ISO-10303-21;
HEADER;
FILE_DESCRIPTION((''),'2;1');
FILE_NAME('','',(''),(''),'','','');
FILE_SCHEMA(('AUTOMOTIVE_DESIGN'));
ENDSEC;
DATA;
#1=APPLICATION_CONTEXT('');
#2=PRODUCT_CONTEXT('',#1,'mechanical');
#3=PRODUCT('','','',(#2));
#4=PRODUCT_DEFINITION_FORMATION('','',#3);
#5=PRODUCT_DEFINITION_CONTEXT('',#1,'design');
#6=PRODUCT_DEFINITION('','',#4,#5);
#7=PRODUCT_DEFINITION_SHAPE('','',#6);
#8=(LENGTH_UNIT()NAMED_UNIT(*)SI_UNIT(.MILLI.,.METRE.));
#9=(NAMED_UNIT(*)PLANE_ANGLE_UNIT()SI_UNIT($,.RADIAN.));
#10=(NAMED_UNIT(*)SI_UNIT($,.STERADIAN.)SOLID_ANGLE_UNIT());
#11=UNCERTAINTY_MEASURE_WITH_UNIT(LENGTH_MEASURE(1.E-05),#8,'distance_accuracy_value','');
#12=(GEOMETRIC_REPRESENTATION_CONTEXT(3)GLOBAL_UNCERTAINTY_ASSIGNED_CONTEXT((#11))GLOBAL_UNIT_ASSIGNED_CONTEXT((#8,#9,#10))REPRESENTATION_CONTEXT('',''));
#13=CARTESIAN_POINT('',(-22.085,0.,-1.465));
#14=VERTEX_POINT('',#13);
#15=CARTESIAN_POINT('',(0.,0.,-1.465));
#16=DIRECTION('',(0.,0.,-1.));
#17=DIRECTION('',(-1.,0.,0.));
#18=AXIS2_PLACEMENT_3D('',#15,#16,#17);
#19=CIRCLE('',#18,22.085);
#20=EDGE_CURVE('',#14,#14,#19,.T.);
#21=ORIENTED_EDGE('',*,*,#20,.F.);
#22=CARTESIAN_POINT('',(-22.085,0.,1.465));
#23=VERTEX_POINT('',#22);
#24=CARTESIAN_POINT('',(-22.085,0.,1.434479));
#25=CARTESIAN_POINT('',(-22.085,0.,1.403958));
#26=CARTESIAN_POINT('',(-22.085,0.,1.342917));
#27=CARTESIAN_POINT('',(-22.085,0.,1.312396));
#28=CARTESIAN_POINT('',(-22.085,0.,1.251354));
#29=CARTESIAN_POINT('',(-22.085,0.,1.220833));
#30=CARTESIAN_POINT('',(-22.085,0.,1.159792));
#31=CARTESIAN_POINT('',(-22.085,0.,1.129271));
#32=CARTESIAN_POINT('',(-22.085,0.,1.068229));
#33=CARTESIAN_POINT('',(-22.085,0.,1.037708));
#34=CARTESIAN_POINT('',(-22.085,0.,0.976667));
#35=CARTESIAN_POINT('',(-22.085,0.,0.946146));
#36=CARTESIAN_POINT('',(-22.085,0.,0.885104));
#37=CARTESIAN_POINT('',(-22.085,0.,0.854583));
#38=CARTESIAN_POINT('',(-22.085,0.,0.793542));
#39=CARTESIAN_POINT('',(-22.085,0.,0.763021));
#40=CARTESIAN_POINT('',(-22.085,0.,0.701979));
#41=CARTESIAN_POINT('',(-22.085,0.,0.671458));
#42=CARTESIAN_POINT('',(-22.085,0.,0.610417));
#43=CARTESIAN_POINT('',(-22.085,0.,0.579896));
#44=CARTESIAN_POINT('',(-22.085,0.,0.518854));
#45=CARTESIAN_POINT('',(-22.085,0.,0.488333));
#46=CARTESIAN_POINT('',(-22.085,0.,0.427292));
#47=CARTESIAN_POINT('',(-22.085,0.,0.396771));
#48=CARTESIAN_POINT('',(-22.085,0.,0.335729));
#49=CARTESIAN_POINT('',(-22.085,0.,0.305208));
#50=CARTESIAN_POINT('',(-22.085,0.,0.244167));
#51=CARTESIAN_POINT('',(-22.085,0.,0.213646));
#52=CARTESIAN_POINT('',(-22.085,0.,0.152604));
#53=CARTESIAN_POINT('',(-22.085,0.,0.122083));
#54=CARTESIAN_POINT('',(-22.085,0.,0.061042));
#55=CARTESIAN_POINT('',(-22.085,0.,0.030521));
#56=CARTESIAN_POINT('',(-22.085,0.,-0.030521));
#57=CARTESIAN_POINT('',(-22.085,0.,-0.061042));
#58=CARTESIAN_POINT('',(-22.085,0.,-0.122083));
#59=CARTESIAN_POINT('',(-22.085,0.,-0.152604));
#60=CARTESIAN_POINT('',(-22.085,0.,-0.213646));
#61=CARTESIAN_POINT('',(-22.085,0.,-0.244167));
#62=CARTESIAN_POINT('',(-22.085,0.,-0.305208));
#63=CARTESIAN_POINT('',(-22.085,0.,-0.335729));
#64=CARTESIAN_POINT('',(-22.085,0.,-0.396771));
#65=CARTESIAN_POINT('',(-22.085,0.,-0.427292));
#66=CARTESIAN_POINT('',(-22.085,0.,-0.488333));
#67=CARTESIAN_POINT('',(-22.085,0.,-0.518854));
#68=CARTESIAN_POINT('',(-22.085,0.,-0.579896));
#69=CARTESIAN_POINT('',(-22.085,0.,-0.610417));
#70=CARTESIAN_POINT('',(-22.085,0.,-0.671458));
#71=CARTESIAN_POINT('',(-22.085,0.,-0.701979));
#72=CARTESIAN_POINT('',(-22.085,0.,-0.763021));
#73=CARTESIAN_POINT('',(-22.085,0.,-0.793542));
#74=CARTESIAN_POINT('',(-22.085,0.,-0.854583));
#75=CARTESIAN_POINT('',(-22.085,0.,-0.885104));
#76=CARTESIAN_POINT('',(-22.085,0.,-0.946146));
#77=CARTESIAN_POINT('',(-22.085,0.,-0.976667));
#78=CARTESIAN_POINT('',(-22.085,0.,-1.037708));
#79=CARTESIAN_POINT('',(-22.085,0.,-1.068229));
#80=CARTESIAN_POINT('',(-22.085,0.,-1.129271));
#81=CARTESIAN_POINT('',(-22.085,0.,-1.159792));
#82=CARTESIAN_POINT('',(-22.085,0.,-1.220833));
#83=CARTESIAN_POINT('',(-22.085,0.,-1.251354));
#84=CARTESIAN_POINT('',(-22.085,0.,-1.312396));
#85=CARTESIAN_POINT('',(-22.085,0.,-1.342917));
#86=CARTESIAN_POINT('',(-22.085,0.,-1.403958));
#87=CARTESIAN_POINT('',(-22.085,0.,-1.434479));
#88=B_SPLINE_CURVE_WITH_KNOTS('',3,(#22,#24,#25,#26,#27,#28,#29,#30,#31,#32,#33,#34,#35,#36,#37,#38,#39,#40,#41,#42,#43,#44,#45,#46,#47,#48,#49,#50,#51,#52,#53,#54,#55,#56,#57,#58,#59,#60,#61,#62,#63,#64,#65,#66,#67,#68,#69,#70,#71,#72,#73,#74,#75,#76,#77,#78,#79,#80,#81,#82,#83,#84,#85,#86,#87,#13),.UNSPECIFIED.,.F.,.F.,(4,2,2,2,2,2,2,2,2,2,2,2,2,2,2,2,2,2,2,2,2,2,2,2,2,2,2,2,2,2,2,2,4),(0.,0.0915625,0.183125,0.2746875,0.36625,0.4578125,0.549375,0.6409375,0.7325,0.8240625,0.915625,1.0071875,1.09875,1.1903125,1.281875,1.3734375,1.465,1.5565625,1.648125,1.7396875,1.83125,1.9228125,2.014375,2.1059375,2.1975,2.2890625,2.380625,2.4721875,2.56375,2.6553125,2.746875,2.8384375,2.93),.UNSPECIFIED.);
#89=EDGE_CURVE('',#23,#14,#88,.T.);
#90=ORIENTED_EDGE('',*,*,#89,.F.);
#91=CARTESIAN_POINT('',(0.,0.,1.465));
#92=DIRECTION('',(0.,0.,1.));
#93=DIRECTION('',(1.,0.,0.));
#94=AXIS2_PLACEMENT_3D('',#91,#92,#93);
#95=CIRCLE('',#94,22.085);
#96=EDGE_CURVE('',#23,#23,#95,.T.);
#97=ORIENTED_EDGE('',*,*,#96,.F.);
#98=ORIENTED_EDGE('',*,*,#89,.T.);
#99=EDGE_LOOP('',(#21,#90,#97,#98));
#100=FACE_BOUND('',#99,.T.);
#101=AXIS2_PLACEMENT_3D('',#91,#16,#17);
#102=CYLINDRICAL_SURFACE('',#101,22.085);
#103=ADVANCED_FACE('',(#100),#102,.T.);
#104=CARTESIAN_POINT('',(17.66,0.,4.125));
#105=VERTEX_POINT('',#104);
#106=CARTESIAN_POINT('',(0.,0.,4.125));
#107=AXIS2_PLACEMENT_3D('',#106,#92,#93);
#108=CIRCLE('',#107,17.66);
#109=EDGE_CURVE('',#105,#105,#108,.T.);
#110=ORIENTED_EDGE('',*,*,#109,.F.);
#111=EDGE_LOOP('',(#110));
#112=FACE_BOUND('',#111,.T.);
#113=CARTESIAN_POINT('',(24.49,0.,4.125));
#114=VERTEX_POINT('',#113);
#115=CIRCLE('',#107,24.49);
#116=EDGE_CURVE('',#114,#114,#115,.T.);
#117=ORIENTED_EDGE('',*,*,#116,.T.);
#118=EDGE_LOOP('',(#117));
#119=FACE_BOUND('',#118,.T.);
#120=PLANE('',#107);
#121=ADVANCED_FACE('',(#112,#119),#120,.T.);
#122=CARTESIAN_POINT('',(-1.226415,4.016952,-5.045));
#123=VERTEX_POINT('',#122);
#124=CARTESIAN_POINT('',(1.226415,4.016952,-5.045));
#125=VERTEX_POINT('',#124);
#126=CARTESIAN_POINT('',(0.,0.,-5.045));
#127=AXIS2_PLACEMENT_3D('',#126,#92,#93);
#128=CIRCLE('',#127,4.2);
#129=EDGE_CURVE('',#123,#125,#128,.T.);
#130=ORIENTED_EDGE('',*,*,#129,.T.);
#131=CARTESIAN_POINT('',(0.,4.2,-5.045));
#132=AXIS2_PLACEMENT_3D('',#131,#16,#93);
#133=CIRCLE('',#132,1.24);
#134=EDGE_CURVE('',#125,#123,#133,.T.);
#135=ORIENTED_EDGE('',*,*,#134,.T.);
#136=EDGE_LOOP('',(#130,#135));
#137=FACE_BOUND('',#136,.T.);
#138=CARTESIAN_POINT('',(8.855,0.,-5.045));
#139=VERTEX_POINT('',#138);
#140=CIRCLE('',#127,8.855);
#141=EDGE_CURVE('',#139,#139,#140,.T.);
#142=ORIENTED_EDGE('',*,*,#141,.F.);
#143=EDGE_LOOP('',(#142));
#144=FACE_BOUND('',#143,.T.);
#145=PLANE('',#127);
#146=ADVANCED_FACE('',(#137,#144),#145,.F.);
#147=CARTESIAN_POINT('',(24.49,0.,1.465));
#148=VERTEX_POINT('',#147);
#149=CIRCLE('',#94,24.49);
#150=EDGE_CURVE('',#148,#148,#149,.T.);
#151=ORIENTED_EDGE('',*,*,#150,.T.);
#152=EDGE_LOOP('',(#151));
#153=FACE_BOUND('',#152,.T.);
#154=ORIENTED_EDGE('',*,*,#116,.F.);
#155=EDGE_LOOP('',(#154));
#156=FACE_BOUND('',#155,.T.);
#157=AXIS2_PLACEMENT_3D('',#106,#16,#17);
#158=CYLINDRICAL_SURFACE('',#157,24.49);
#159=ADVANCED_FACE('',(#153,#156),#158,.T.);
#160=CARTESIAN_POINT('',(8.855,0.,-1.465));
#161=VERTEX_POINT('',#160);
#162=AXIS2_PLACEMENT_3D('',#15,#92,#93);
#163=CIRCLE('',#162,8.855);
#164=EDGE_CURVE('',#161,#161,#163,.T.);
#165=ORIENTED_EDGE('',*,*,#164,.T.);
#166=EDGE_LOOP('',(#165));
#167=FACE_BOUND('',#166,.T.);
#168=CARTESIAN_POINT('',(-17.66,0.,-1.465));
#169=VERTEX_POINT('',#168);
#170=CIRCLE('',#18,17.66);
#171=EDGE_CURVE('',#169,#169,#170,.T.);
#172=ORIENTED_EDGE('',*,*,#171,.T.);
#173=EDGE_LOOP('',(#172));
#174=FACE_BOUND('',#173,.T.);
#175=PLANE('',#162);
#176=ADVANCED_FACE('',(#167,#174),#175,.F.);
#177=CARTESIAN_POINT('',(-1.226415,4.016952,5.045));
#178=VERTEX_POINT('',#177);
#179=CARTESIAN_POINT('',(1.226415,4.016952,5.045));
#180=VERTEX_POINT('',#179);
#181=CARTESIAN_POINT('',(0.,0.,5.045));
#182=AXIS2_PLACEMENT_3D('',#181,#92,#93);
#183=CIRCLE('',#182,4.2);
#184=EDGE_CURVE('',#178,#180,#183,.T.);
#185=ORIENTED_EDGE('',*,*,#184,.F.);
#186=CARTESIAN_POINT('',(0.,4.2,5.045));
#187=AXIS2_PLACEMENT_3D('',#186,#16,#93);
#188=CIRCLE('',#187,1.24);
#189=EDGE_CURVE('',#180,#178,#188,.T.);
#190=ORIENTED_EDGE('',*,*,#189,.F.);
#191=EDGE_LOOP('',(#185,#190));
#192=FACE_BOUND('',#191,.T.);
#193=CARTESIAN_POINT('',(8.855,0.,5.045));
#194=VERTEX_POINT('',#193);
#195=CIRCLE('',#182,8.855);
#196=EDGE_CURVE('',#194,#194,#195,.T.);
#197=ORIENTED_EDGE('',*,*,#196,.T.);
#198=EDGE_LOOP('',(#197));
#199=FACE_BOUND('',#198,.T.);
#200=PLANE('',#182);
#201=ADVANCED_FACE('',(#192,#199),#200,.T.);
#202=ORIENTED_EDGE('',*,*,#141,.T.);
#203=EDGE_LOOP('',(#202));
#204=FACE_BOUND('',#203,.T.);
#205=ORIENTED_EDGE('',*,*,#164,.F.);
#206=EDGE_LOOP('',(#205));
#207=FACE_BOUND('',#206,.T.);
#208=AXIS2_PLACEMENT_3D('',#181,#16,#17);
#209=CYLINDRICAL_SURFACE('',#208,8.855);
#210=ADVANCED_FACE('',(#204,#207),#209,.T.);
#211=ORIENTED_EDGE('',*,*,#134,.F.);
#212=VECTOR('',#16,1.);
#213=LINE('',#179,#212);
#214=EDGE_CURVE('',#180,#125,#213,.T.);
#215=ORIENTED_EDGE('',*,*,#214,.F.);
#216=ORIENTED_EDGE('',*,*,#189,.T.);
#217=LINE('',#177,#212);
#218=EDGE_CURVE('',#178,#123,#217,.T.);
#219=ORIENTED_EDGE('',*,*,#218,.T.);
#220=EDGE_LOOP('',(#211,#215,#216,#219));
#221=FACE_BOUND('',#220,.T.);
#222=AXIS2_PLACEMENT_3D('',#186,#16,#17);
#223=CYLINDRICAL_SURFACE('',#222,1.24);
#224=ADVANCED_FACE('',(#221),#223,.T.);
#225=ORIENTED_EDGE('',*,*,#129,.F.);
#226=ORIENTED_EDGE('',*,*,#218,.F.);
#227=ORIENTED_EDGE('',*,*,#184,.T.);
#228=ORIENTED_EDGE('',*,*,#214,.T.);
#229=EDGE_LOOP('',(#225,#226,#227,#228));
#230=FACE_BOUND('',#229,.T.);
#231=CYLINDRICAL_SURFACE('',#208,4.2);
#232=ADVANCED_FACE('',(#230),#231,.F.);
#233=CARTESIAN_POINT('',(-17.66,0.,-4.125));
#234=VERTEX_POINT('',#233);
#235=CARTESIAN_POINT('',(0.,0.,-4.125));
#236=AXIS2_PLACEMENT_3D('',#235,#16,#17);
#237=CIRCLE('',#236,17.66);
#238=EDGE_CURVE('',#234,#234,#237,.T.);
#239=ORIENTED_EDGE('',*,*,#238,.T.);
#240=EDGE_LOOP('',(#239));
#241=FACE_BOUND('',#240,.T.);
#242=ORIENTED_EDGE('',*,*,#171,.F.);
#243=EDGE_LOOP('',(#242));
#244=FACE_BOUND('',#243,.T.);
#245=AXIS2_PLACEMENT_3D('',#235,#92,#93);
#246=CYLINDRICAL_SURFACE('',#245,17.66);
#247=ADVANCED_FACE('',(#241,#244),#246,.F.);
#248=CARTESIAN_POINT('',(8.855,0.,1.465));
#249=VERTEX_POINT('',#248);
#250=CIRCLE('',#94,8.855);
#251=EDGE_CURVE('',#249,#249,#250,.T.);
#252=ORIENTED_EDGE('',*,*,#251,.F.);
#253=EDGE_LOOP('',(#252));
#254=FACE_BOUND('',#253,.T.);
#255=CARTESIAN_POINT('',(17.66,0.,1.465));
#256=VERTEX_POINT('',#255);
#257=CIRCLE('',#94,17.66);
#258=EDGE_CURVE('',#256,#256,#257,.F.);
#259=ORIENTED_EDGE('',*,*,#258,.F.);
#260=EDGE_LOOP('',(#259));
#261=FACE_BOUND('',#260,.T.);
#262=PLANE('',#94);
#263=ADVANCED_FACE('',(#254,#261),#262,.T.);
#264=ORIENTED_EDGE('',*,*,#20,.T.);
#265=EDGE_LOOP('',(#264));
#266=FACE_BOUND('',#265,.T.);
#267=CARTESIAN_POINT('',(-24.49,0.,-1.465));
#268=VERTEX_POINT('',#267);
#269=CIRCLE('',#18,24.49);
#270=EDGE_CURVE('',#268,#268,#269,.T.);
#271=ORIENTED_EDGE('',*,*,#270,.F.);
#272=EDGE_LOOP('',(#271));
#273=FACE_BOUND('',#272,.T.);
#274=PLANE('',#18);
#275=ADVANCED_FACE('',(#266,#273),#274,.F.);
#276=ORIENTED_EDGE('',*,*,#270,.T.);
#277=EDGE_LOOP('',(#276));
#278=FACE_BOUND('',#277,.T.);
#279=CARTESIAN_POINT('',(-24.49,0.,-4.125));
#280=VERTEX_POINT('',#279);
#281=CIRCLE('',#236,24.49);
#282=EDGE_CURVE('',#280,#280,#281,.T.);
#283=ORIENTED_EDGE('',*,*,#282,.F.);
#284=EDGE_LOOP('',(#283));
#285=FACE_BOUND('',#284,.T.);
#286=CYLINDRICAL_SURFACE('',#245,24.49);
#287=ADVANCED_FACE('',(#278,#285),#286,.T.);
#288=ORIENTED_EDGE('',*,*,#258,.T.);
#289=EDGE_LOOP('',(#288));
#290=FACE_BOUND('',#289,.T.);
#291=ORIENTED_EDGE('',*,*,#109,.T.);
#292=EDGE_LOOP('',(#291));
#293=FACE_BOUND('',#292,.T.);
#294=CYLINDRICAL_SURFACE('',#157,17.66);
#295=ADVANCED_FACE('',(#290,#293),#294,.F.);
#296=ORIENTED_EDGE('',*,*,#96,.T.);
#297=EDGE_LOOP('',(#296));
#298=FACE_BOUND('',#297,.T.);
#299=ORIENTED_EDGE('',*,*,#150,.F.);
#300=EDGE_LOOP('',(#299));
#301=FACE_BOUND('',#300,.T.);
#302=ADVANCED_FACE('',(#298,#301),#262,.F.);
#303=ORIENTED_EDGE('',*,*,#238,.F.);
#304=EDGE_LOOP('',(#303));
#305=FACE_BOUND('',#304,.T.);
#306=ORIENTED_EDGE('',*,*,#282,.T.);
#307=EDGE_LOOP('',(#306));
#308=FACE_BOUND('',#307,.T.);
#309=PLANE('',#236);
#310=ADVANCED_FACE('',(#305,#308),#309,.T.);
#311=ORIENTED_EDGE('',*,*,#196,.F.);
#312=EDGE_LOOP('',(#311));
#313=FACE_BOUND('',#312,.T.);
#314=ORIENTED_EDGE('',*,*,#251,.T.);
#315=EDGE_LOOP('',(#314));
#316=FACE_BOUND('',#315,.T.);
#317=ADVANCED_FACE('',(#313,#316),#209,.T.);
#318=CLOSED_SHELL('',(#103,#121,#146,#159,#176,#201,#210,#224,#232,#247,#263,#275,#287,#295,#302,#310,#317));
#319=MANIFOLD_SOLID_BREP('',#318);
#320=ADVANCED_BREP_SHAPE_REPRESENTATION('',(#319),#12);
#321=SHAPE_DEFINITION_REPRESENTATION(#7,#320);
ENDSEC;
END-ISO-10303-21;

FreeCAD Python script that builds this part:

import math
import FreeCAD as App
import Part
import Sketcher

V = App.Vector
Q = App.Units.Quantity

doc = App.newDocument("Part")
body = doc.addObject("PartDesign::Body", "Body")

# Sketch on XY plane
sketch1 = body.newObject("Sketcher::SketchObject", "Sketch")
sketch1.AttachmentSupport = (doc.getObject("XY_Plane"), [""])
sketch1.MapMode = "FlatFace"
sketch1.addGeometry(Part.Circle(V(0, 0, 0), V(0, 0, 1), 8.9), False)
sketch1.addGeometry(Part.ArcOfCircle(Part.Circle(V(0, 0, 0), V(0, 0, 1), 4.2), math.radians(107), math.radians(433)), False)
sketch1.addGeometry(Part.ArcOfCircle(Part.Circle(V(0, 4.2, 0), V(0, 0, 1), 1.2), math.radians(-172), math.radians(-8)), False)
sketch1.addConstraint(Sketcher.Constraint("Coincident", 1, 1, 2, 1))
sketch1.addConstraint(Sketcher.Constraint("Coincident", 2, 2, 1, 2))
sketch1.addConstraint(Sketcher.Constraint("Coincident", 0, 3, -1, 1))
sketch1.addConstraint(Sketcher.Constraint("Coincident", 1, 3, -1, 1))
sketch1.addConstraint(Sketcher.Constraint("PointOnObject", 2, 3, -2))
sketch1.addConstraint(Sketcher.Constraint("Radius", 1, Q("4.2 mm")))
sketch1.addConstraint(Sketcher.Constraint("Diameter", 0, Q("17.71 mm")))
sketch1.addConstraint(Sketcher.Constraint("Radius", 2, Q("1.24 mm")))
sketch1.addConstraint(Sketcher.Constraint("DistanceY", -1, 1, 2, 3, Q("4.2 mm")))
pad1 = body.newObject("PartDesign::Pad", "Pad")
pad1.Profile = sketch1
pad1.Length = 10.09
pad1.Midplane = True

# Sketch on XY plane
sketch2 = body.newObject("Sketcher::SketchObject", "Sketch001")
sketch2.AttachmentSupport = (doc.getObject("XY_Plane"), [""])
sketch2.MapMode = "FlatFace"
sketch2.addGeometry(Part.Circle(V(0, 0, 0), V(0, 0, 1), 22), False)
sketch2.addGeometry(Part.Circle(V(0, 0, 0), V(0, 0, 1), 9), False)
sketch2.addConstraint(Sketcher.Constraint("Coincident", 0, 3, -1, 1))
sketch2.addConstraint(Sketcher.Constraint("Coincident", 1, 3, -1, 1))
sketch2.addConstraint(Sketcher.Constraint("Diameter", 0, Q("44.17 mm")))
sketch2.addConstraint(Sketcher.Constraint("Diameter", 1, Q("17.71 mm")))
pad2 = body.newObject("PartDesign::Pad", "Pad001")
pad2.Profile = sketch2
pad2.Length = 2.93
pad2.Midplane = True

# Sketch on XY plane
sketch3 = body.newObject("Sketcher::SketchObject", "Sketch002")
sketch3.AttachmentSupport = (doc.getObject("XY_Plane"), [""])
sketch3.MapMode = "FlatFace"
sketch3.AttachmentOffset = App.Placement(V(0, 0, 1.465), App.Rotation())
sketch3.addGeometry(Part.Circle(V(0, 0, 0), V(0, 0, 1), 24), False)
sketch3.addGeometry(Part.Circle(V(0, 0, 0), V(0, 0, 1), 18), False)
sketch3.addConstraint(Sketcher.Constraint("Coincident", 0, 3, -1, 1))
sketch3.addConstraint(Sketcher.Constraint("Coincident", 1, 3, -1, 1))
sketch3.addConstraint(Sketcher.Constraint("Diameter", 0, Q("48.98 mm")))
sketch3.addConstraint(Sketcher.Constraint("Diameter", 1, Q("35.32 mm")))
pad3 = body.newObject("PartDesign::Pad", "Pad002")
pad3.Profile = sketch3
pad3.Length = 2.66

# Sketch on XY plane
sketch4 = body.newObject("Sketcher::SketchObject", "Sketch003")
sketch4.AttachmentSupport = (doc.getObject("XY_Plane"), [""])
sketch4.MapMode = "FlatFace"
sketch4.AttachmentOffset = App.Placement(V(0, 0, -4.125), App.Rotation())
sketch4.addGeometry(Part.Circle(V(0, 0, 0), V(0, 0, 1), 24), False)
sketch4.addGeometry(Part.Circle(V(0, 0, 0), V(0, 0, 1), 18), False)
sketch4.addConstraint(Sketcher.Constraint("Coincident", 0, 3, -1, 1))
sketch4.addConstraint(Sketcher.Constraint("Coincident", 1, 3, -1, 1))
sketch4.addConstraint(Sketcher.Constraint("Diameter", 0, Q("48.98 mm")))
sketch4.addConstraint(Sketcher.Constraint("Diameter", 1, Q("35.32 mm")))
pad4 = body.newObject("PartDesign::Pad", "Pad003")
pad4.Profile = sketch4
pad4.Length = 2.66

doc.recompute()
